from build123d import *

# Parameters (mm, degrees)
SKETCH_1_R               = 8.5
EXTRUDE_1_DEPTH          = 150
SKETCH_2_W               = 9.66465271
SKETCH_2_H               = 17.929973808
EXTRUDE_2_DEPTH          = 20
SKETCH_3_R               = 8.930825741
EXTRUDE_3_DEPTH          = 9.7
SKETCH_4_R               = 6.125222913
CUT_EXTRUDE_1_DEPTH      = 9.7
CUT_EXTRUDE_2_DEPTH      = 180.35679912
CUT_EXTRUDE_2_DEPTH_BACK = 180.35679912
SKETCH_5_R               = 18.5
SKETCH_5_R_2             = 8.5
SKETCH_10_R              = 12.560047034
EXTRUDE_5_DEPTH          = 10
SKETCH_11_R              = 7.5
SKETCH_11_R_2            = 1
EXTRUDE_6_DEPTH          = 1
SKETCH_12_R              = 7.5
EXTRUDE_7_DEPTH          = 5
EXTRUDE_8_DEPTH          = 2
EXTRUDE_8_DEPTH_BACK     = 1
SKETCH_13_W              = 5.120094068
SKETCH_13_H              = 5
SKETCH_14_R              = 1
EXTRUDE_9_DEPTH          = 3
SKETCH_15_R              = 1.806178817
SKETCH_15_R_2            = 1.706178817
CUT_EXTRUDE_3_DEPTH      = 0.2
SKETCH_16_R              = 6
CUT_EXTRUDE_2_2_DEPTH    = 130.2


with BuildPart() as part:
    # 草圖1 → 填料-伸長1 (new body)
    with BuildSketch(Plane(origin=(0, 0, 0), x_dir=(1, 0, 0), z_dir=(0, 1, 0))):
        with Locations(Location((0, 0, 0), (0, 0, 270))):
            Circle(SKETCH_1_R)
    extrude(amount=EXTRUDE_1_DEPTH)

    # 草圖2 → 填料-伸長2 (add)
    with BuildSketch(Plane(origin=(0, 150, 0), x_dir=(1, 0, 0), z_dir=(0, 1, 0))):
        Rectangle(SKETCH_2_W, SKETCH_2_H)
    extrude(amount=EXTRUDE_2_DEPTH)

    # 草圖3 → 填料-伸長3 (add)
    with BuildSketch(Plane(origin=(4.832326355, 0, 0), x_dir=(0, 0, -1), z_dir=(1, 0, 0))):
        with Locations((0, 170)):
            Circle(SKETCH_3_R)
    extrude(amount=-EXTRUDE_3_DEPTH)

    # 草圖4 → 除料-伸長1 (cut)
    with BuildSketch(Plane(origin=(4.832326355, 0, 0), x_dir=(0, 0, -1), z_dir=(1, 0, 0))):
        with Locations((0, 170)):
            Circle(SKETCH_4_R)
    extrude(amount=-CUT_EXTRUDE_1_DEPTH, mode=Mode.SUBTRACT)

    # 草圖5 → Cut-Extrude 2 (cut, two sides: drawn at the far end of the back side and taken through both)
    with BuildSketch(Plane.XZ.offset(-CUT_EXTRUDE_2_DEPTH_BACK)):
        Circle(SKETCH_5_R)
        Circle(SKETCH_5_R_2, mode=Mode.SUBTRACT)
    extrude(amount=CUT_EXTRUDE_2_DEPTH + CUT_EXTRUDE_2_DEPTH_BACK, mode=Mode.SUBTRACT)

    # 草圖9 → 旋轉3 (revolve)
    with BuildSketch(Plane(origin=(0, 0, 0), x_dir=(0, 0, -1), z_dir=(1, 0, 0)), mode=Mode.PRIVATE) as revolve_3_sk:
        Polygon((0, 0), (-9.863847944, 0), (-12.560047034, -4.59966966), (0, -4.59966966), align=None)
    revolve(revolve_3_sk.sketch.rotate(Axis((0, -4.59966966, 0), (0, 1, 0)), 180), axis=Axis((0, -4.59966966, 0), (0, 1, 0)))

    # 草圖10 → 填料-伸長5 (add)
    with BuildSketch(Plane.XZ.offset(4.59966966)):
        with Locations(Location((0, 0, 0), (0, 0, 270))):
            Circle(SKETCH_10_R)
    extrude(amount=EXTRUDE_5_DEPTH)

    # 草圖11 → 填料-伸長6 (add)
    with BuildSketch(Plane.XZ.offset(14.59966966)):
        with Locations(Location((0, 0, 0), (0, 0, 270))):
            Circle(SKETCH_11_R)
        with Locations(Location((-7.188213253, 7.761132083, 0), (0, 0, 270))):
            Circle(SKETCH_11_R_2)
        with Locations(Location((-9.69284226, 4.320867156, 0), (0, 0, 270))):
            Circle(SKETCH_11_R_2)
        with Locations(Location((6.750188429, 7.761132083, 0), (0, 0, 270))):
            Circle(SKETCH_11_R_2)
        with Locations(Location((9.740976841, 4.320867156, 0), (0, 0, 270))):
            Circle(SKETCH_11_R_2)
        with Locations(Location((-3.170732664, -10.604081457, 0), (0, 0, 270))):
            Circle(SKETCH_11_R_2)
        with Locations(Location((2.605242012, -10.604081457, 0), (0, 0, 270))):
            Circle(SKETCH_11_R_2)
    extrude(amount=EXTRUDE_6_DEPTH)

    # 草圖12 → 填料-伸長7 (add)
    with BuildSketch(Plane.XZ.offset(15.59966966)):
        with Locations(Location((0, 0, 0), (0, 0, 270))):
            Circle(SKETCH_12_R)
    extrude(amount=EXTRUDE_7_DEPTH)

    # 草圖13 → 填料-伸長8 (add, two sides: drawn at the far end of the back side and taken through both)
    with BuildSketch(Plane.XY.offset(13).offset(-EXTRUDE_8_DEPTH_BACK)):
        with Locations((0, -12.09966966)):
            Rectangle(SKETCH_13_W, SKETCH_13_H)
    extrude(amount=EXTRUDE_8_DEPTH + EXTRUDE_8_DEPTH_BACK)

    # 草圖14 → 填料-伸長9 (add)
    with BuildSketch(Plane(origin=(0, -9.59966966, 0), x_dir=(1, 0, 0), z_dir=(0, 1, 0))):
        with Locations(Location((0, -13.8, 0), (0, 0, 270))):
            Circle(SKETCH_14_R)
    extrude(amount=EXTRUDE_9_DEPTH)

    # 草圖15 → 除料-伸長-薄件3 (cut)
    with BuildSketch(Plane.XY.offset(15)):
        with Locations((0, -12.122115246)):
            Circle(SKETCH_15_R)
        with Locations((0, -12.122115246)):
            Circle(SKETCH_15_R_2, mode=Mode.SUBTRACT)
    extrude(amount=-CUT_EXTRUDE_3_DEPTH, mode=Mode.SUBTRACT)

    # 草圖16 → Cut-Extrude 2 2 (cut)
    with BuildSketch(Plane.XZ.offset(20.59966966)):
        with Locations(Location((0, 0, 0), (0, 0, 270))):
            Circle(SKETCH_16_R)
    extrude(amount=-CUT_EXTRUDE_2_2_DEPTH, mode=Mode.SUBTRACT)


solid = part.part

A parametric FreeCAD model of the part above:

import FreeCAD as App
import Part
import Sketcher


def add_polygon(sketch, points):
    """Adds a closed chain of lines whose ends are joined by coincident constraints."""
    first, n = sketch.GeometryCount, len(points)
    for a, b in zip(points, points[1:] + points[:1]):
        sketch.addGeometry(Part.LineSegment(App.Vector(*a, 0), App.Vector(*b, 0)), False)
    for i in range(n):
        sketch.addConstraint(Sketcher.Constraint("Coincident", first + i, 2, first + (i + 1) % n, 1))

doc = App.newDocument("Part")
body = doc.addObject("PartDesign::Body", "Body")

sketch1 = body.newObject("Sketcher::SketchObject", "Sketch")
sketch1.AttachmentSupport = (doc.getObject("XZ_Plane"), [""])
sketch1.MapMode = "FlatFace"
sketch1.addGeometry(Part.Circle(App.Vector(0, 0, 0), App.Vector(0, 0, 1), 8), False)
sketch1.addConstraint([
    Sketcher.Constraint("Coincident", 0, 3, -1, 1),
    Sketcher.Constraint("Diameter", 0, 17.0),
])
pad1 = body.newObject("PartDesign::Pad", "Pad")
pad1.Profile = sketch1
pad1.Length = 150
pad1.Reversed = True

sketch2 = body.newObject("Sketcher::SketchObject", "Sketch001")
sketch2.AttachmentSupport = (doc.getObject("XZ_Plane"), [""])
sketch2.MapMode = "FlatFace"
sketch2.AttachmentOffset = App.Placement(App.Vector(0, 0, -150), App.Rotation())
add_polygon(sketch2, [(-5, -9), (-5, 9), (5, 9), (5, -9)])
sketch2.addConstraint([
    Sketcher.Constraint("Vertical", 0),
    Sketcher.Constraint("Horizontal", 1),
    Sketcher.Constraint("Vertical", 2),
    Sketcher.Constraint("Horizontal", 3),
    Sketcher.Constraint("Symmetric", 0, 2, 2, 2, -1, 1),
    Sketcher.Constraint("DistanceX", 1, 1, 1, 2, 9.664653),
    Sketcher.Constraint("DistanceY", 0, 1, 0, 2, 17.929974),
])
pad2 = body.newObject("PartDesign::Pad", "Pad001")
pad2.Profile = sketch2
pad2.Length = 20
pad2.Reversed = True

sketch3 = body.newObject("Sketcher::SketchObject", "Sketch002")
sketch3.AttachmentSupport = (doc.getObject("YZ_Plane"), [""])
sketch3.MapMode = "FlatFace"
sketch3.AttachmentOffset = App.Placement(App.Vector(0, 0, 4.832326), App.Rotation())
sketch3.addGeometry(Part.Circle(App.Vector(170, 0, 0), App.Vector(0, 0, 1), 9), False)
sketch3.addConstraint([
    Sketcher.Constraint("PointOnObject", 0, 3, -1),
    Sketcher.Constraint("DistanceX", -1, 1, 0, 3, 170.0),
    Sketcher.Constraint("Diameter", 0, 17.861651),
])
pad3 = body.newObject("PartDesign::Pad", "Pad002")
pad3.Profile = sketch3
pad3.Length = 9.7
pad3.Reversed = True

sketch4 = body.newObject("Sketcher::SketchObject", "Sketch003")
sketch4.AttachmentSupport = (doc.getObject("YZ_Plane"), [""])
sketch4.MapMode = "FlatFace"
sketch4.AttachmentOffset = App.Placement(App.Vector(0, 0, 4.832326), App.Rotation())
sketch4.addGeometry(Part.Circle(App.Vector(170, 0, 0), App.Vector(0, 0, 1), 6), False)
sketch4.addConstraint([
    Sketcher.Constraint("PointOnObject", 0, 3, -1),
    Sketcher.Constraint("DistanceX", -1, 1, 0, 3, 170.0),
    Sketcher.Constraint("Diameter", 0, 12.250446),
])
pocket1 = body.newObject("PartDesign::Pocket", "Pocket")
pocket1.Profile = sketch4
pocket1.Length = 9.7

sketch5 = body.newObject("Sketcher::SketchObject", "Sketch004")
sketch5.AttachmentSupport = (doc.getObject("XZ_Plane"), [""])
sketch5.MapMode = "FlatFace"
sketch5.addGeometry([
    Part.Circle(App.Vector(0, 0, 0), App.Vector(0, 0, 1), 18),
    Part.Circle(App.Vector(0, 0, 0), App.Vector(0, 0, 1), 8),
], False)
sketch5.addConstraint([
    Sketcher.Constraint("Coincident", 0, 3, -1, 1),
    Sketcher.Constraint("Coincident", 1, 3, -1, 1),
    Sketcher.Constraint("Diameter", 0, 37.0),
    Sketcher.Constraint("Diameter", 1, 17.0),
])
pocket2 = body.newObject("PartDesign::Pocket", "Pocket001")
pocket2.Profile = sketch5
pocket2.Type = "ThroughAll"
pocket2.Midplane = True

sketch6 = body.newObject("Sketcher::SketchObject", "Sketch005")
sketch6.AttachmentSupport = (doc.getObject("YZ_Plane"), [""])
sketch6.MapMode = "FlatFace"
add_polygon(sketch6, [(0, 0), (0, 9.9), (-4.6, 12.6), (-4.6, 0)])
sketch6.addConstraint([
    Sketcher.Constraint("Vertical", 0),
    Sketcher.Constraint("Vertical", 2),
    Sketcher.Constraint("Horizontal", 3),
    Sketcher.Constraint("Coincident", 3, 2, -1, 1),
    Sketcher.Constraint("DistanceX", 3, 1, 3, 2, 4.59967),
    Sketcher.Constraint("DistanceY", 0, 2, 1, 2, 2.696199),
    Sketcher.Constraint("DistanceY", 0, 1, 0, 2, 9.863848),
])
revolution = body.newObject("PartDesign::Revolution", "Revolution")
revolution.Profile = sketch6
revolution.ReferenceAxis = (sketch6, ["H_Axis"])
revolution.Angle = 360

sketch7 = body.newObject("Sketcher::SketchObject", "Sketch006")
sketch7.AttachmentSupport = (doc.getObject("XZ_Plane"), [""])
sketch7.MapMode = "FlatFace"
sketch7.AttachmentOffset = App.Placement(App.Vector(0, 0, 4.59967), App.Rotation())
sketch7.addGeometry(Part.Circle(App.Vector(0, 0, 0), App.Vector(0, 0, 1), 13), False)
sketch7.addConstraint([
    Sketcher.Constraint("Coincident", 0, 3, -1, 1),
    Sketcher.Constraint("Diameter", 0, 25.120094),
])
pad4 = body.newObject("PartDesign::Pad", "Pad003")
pad4.Profile = sketch7
pad4.Length = 10

sketch8 = body.newObject("Sketcher::SketchObject", "Sketch007")
sketch8.AttachmentSupport = (doc.getObject("XZ_Plane"), [""])
sketch8.MapMode = "FlatFace"
sketch8.AttachmentOffset = App.Placement(App.Vector(0, 0, 14.59967), App.Rotation())
sketch8.addGeometry([
    Part.Circle(App.Vector(0, 0, 0), App.Vector(0, 0, 1), 7.5),
    Part.Circle(App.Vector(-7.2, 7.8, 0), App.Vector(0, 0, 1), 1),
    Part.Circle(App.Vector(-9.7, 4.3, 0), App.Vector(0, 0, 1), 1),
    Part.Circle(App.Vector(6.8, 7.8, 0), App.Vector(0, 0, 1), 1),
    Part.Circle(App.Vector(9.7, 4.3, 0), App.Vector(0, 0, 1), 1),
    Part.Circle(App.Vector(-3.2, -10.6, 0), App.Vector(0, 0, 1), 1),
    Part.Circle(App.Vector(2.6, -10.6, 0), App.Vector(0, 0, 1), 1),
], False)
sketch8.addConstraint([
    Sketcher.Constraint("Coincident", 0, 3, -1, 1),
    Sketcher.Constraint("Equal", 1, 2),
    Sketcher.Constraint("Equal", 2, 3),
    Sketcher.Constraint("Equal", 3, 4),
    Sketcher.Constraint("Equal", 4, 5),
    Sketcher.Constraint("Equal", 5, 6),
    Sketcher.Constraint("Horizontal", 1, 3, 3, 3),
    Sketcher.Constraint("Horizontal", 2, 3, 4, 3),
    Sketcher.Constraint("Horizontal", 5, 3, 6, 3),
    Sketcher.Constraint("Diameter", 0, 15.0),
    Sketcher.Constraint("Diameter", 1, 2.0),
    Sketcher.Constraint("DistanceX", 1, 3, 3, 3, 13.938402),
    Sketcher.Constraint("DistanceX", -1, 1, 3, 3, 6.750188),
    Sketcher.Constraint("DistanceY", 5, 3, -1, 1, 10.604081),
    Sketcher.Constraint("DistanceX", 2, 3, 1, 3, 2.504629),
    Sketcher.Constraint("DistanceX", 3, 3, 4, 3, 2.990788),
    Sketcher.Constraint("DistanceX", 2, 3, 5, 3, 6.52211),
    Sketcher.Constraint("DistanceY", 5, 3, 2, 3, 14.924949),
    Sketcher.Constraint("DistanceY", -1, 1, 1, 3, 7.761132),
    Sketcher.Constraint("DistanceX", -1, 1, 6, 3, 2.605242),
])
pad5 = body.newObject("PartDesign::Pad", "Pad004")
pad5.Profile = sketch8
pad5.Length = 1

sketch9 = body.newObject("Sketcher::SketchObject", "Sketch008")
sketch9.AttachmentSupport = (doc.getObject("XZ_Plane"), [""])
sketch9.MapMode = "FlatFace"
sketch9.AttachmentOffset = App.Placement(App.Vector(0, 0, 15.59967), App.Rotation())
sketch9.addGeometry(Part.Circle(App.Vector(0, 0, 0), App.Vector(0, 0, 1), 8), False)
sketch9.addConstraint([
    Sketcher.Constraint("Coincident", 0, 3, -1, 1),
    Sketcher.Constraint("Diameter", 0, 15.0),
])
pad6 = body.newObject("PartDesign::Pad", "Pad005")
pad6.Profile = sketch9
pad6.Length = 5

sketch10 = body.newObject("Sketcher::SketchObject", "Sketch009")
sketch10.AttachmentSupport = (doc.getObject("XY_Plane"), [""])
sketch10.MapMode = "FlatFace"
sketch10.AttachmentOffset = App.Placement(App.Vector(0, 0, 13), App.Rotation())
add_polygon(sketch10, [(-3, -10), (-3, -15), (3, -15), (3, -10)])
sketch10.addConstraint([
    Sketcher.Constraint("Vertical", 0),
    Sketcher.Constraint("Horizontal", 1),
    Sketcher.Constraint("Vertical", 2),
    Sketcher.Constraint("Horizontal", 3),
    Sketcher.Constraint("DistanceY", 0, 2, 0, 1, 5.0),
    Sketcher.Constraint("DistanceX", 1, 1, 1, 2, 5.120094),
    Sketcher.Constraint("DistanceY", 0, 2, -1, 1, 14.59967),
    Sketcher.Constraint("DistanceX", 0, 2, -1, 1, 2.560047),
])
pad7 = body.newObject("PartDesign::Pad", "Pad006")
pad7.Profile = sketch10
pad7.Type = "TwoLengths"
pad7.Length = 2
pad7.Length2 = 1

sketch11 = body.newObject("Sketcher::SketchObject", "Sketch010")
sketch11.AttachmentSupport = (doc.getObject("XZ_Plane"), [""])
sketch11.MapMode = "FlatFace"
sketch11.AttachmentOffset = App.Placement(App.Vector(0, 0, 9.59967), App.Rotation())
sketch11.addGeometry(Part.Circle(App.Vector(0, 13.8, 0), App.Vector(0, 0, 1), 1), False)
sketch11.addConstraint([
    Sketcher.Constraint("PointOnObject", 0, 3, -2),
    Sketcher.Constraint("Diameter", 0, 2.0),
    Sketcher.Constraint("DistanceY", -1, 1, 0, 3, 13.8),
])
pad8 = body.newObject("PartDesign::Pad", "Pad007")
pad8.Profile = sketch11
pad8.Length = 3
pad8.Reversed = True

sketch12 = body.newObject("Sketcher::SketchObject", "Sketch011")
sketch12.AttachmentSupport = (doc.getObject("XY_Plane"), [""])
sketch12.MapMode = "FlatFace"
sketch12.AttachmentOffset = App.Placement(App.Vector(0, 0, 15), App.Rotation())
sketch12.addGeometry([
    Part.Circle(App.Vector(0, -12.1, 0), App.Vector(0, 0, 1), 1.8),
    Part.Circle(App.Vector(0, -12.1, 0), App.Vector(0, 0, 1), 1.7),
], False)
sketch12.addConstraint([
    Sketcher.Constraint("Coincident", 1, 3, 0, 3),
    Sketcher.Constraint("PointOnObject", 0, 3, -2),
    Sketcher.Constraint("Diameter", 0, 3.612358),
    Sketcher.Constraint("Diameter", 1, 3.412358),
    Sketcher.Constraint("DistanceY", 0, 3, -1, 1, 12.122115),
])
pocket3 = body.newObject("PartDesign::Pocket", "Pocket002")
pocket3.Profile = sketch12
pocket3.Length = 0.2

sketch13 = body.newObject("Sketcher::SketchObject", "Sketch012")
sketch13.AttachmentSupport = (doc.getObject("XZ_Plane"), [""])
sketch13.MapMode = "FlatFace"
sketch13.AttachmentOffset = App.Placement(App.Vector(0, 0, 20.59967), App.Rotation())
sketch13.addGeometry(Part.Circle(App.Vector(0, 0, 0), App.Vector(0, 0, 1), 6), False)
sketch13.addConstraint([
    Sketcher.Constraint("Coincident", 0, 3, -1, 1),
    Sketcher.Constraint("Diameter", 0, 12.0),
])
pocket4 = body.newObject("PartDesign::Pocket", "Pocket003")
pocket4.Profile = sketch13
pocket4.Length = 130.2

doc.recompute()
